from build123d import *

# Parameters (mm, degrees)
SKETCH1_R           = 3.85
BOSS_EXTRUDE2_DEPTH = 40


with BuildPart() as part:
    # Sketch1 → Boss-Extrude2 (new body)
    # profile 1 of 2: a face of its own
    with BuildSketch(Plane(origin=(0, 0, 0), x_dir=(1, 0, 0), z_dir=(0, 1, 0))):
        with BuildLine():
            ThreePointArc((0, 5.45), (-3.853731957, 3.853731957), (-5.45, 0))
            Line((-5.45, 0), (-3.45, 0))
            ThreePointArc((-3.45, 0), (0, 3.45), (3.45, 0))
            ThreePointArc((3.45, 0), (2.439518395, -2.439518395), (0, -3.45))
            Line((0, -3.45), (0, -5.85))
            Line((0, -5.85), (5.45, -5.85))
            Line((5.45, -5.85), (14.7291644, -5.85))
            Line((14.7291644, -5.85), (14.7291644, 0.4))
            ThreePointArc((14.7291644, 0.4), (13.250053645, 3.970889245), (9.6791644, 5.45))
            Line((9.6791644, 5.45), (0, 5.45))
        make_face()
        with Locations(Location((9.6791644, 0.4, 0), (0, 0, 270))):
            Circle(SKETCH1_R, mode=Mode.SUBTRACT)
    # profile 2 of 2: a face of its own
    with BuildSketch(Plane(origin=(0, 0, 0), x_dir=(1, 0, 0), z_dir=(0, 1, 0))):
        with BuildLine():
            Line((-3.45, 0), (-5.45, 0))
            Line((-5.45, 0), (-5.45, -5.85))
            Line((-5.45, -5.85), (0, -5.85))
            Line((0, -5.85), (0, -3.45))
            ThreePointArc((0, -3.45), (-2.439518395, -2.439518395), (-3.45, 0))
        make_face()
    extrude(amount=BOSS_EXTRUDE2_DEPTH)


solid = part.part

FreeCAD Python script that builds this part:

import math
import FreeCAD as App
import Part
import Sketcher

V = App.Vector

doc = App.newDocument("Part")
body = doc.addObject("PartDesign::Body", "Body")

sketch1 = doc.addObject("Sketcher::SketchObject", "Sketch")
body.addObject(sketch1)
sketch1.AttachmentSupport = (doc.XZ_Plane, [""])
sketch1.MapMode = "FlatFace"
sketch1.addGeometry(Part.ArcOfCircle(Part.Circle(V(0, 0, 0), V(0, 0, 1), 5.5), math.radians(-180), math.radians(-90)), False)
sketch1.addGeometry(Part.LineSegment(V(-5.5, 0, 0), V(-5.5, 5.8, 0)), False)
sketch1.addGeometry(Part.LineSegment(V(-5.5, 5.8, 0), V(14.7, 5.8, 0)), False)
sketch1.addGeometry(Part.LineSegment(V(14.7, 5.8, 0), V(14.7, -0.4, 0)), False)
sketch1.addGeometry(Part.ArcOfCircle(Part.Circle(V(9.7, -0.4, 0), V(0, 0, 1), 5), math.radians(-90), math.radians(0)), False)
sketch1.addGeometry(Part.LineSegment(V(9.7, -5.5, 0), V(0, -5.5, 0)), False)
sketch1.addGeometry(Part.ArcOfCircle(Part.Circle(V(0, 0, 0), V(0, 0, 1), 3.5), math.radians(180), math.radians(360)), False)
sketch1.addGeometry(Part.ArcOfCircle(Part.Circle(V(0, 0, 0), V(0, 0, 1), 3.5), math.radians(0), math.radians(90)), False)
sketch1.addGeometry(Part.ArcOfCircle(Part.Circle(V(0, 0, 0), V(0, 0, 1), 3.5), math.radians(90), math.radians(180)), False)
sketch1.addGeometry(Part.Circle(V(9.7, -0.4, 0), V(0, 0, 1), 3.9), False)
sketch1.addConstraint(Sketcher.Constraint("Tangent", 0, 1, 1, 1))
sketch1.addConstraint(Sketcher.Constraint("Coincident", 1, 2, 2, 1))
sketch1.addConstraint(Sketcher.Constraint("Coincident", 2, 2, 3, 1))
sketch1.addConstraint(Sketcher.Constraint("Tangent", 3, 2, 4, 2))
sketch1.addConstraint(Sketcher.Constraint("Tangent", 4, 1, 5, 1))
sketch1.addConstraint(Sketcher.Constraint("Tangent", 5, 2, 0, 2))
sketch1.addConstraint(Sketcher.Constraint("Tangent", 6, 2, 7, 1))
sketch1.addConstraint(Sketcher.Constraint("Tangent", 7, 2, 8, 1))
sketch1.addConstraint(Sketcher.Constraint("Tangent", 8, 2, 6, 1))
sketch1.addConstraint(Sketcher.Constraint("Vertical", 1))
sketch1.addConstraint(Sketcher.Constraint("Horizontal", 2))
sketch1.addConstraint(Sketcher.Constraint("Vertical", 3))
sketch1.addConstraint(Sketcher.Constraint("Horizontal", 5))
sketch1.addConstraint(Sketcher.Constraint("Coincident", 0, 3, -1, 1))
sketch1.addConstraint(Sketcher.Constraint("Coincident", 6, 3, -1, 1))
sketch1.addConstraint(Sketcher.Constraint("Coincident", 9, 3, 4, 3))
sketch1.addConstraint(Sketcher.Constraint("PointOnObject", 6, 2, -1))
sketch1.addConstraint(Sketcher.Constraint("PointOnObject", 7, 2, -2))
sketch1.addConstraint(Sketcher.Constraint("PointOnObject", 8, 2, -1))
sketch1.addConstraint(Sketcher.Constraint("Diameter", 9, 7.7))
sketch1.addConstraint(Sketcher.Constraint("Radius", 0, 5.45))
sketch1.addConstraint(Sketcher.Constraint("Radius", 4, 5.05))
sketch1.addConstraint(Sketcher.Constraint("Radius", 6, 3.45))
sketch1.addConstraint(Sketcher.Constraint("DistanceY", 1, 1, 1, 2, 5.85))
sketch1.addConstraint(Sketcher.Constraint("DistanceX", 2, 1, 2, 2, 20.179164))
pad1 = doc.addObject("PartDesign::Pad", "Pad")
body.addObject(pad1)
pad1.Profile = sketch1
pad1.Length = 40
pad1.Reversed = True

doc.recompute()
